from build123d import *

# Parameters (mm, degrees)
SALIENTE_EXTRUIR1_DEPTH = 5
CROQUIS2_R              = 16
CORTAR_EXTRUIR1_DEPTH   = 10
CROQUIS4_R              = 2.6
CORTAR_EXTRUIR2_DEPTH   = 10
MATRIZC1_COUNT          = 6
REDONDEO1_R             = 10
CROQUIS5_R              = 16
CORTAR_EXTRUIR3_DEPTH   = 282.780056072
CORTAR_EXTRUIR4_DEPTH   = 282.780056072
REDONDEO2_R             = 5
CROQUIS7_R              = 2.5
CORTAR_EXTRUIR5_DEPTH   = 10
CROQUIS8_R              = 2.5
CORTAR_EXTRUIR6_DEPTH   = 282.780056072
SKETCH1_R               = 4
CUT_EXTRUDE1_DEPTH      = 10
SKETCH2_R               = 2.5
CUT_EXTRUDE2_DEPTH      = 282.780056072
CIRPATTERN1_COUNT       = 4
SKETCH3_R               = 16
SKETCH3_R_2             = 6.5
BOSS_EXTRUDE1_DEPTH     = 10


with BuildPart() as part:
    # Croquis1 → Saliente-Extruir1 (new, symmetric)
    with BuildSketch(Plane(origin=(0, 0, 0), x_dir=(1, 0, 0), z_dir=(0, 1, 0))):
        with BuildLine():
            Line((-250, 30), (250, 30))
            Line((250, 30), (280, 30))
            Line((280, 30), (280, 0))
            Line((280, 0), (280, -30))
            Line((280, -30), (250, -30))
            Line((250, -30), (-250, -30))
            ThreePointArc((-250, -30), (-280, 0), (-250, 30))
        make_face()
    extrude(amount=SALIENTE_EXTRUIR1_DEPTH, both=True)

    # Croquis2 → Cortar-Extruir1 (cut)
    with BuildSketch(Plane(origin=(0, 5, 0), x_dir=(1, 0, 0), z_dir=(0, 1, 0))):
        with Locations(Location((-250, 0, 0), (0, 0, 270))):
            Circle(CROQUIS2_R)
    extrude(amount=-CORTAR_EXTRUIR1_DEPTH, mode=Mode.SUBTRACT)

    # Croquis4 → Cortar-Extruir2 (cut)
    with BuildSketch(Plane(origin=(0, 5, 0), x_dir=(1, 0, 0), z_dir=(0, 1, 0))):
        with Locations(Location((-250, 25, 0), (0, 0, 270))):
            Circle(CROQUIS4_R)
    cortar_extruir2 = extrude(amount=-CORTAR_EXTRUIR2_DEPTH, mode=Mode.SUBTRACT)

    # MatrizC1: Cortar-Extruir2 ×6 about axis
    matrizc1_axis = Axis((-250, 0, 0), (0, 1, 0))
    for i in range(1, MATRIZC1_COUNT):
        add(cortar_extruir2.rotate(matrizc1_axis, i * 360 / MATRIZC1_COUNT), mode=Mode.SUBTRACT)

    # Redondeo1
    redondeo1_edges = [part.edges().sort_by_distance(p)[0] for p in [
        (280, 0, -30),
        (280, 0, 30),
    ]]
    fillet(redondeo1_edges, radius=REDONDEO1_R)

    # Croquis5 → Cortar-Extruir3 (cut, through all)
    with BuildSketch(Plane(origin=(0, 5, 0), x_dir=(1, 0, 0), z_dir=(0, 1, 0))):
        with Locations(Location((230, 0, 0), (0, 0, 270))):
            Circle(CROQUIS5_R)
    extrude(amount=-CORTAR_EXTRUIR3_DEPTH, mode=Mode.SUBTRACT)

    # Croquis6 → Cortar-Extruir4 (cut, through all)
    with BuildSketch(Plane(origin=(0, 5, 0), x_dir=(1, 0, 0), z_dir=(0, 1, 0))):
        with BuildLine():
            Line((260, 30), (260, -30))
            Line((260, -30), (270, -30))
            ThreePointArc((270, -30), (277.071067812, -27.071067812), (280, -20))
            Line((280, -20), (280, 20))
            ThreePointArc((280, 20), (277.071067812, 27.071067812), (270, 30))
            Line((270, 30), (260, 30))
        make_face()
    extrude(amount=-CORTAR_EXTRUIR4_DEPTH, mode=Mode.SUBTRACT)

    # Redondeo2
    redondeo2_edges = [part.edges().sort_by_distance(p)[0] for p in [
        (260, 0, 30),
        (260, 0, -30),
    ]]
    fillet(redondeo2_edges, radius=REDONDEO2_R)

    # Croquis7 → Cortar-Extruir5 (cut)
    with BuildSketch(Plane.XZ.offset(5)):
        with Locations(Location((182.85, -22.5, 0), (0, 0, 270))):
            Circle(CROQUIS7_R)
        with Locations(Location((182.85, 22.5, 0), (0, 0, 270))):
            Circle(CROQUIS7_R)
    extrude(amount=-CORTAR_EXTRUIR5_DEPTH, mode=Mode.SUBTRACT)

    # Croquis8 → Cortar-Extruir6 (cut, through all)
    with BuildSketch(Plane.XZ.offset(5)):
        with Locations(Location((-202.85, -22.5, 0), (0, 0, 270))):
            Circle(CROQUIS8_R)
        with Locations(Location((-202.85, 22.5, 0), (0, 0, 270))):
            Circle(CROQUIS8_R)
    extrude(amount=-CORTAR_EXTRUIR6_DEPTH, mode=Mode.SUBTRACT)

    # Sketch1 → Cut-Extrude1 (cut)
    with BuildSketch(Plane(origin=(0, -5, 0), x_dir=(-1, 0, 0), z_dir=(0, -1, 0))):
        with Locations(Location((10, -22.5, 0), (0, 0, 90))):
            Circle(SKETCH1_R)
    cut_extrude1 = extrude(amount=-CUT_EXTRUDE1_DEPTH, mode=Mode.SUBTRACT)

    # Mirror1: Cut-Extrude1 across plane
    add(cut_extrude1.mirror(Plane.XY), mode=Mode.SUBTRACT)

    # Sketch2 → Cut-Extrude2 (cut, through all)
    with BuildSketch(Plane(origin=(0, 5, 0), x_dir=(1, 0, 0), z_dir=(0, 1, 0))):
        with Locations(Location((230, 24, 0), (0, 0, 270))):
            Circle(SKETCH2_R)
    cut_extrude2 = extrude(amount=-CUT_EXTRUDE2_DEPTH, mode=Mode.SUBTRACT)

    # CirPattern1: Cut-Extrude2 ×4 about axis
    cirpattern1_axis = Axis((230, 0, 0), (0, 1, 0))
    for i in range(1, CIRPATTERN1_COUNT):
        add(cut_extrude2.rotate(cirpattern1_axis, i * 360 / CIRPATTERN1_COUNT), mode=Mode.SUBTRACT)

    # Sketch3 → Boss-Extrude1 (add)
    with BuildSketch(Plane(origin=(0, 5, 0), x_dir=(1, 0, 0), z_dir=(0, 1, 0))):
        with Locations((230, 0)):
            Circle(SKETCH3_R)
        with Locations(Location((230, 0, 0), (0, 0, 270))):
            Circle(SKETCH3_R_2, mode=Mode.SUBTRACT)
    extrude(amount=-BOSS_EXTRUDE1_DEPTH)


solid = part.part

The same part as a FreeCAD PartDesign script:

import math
import FreeCAD as App
import Part
import Sketcher
Q = App.Units.Quantity


def edges_at(feature, points):
    """Names of the edges that pass closest to the given points."""
    edges = feature.Shape.Edges
    near = lambda p: min(range(len(edges)), key=lambda i: edges[i].distToShape(Part.Vertex(*p))[0])
    return sorted({f"Edge{near(p) + 1}" for p in points})

doc = App.newDocument("Part")
params = doc.addObject("Spreadsheet::Sheet", "Params")
for row, (alias, value) in enumerate([
    ("sketch1_radius", "30 mm"),
    ("sketch1_width", "530 mm"),
    ("pad1_length", "10 mm"),
    ("sketch2_diameter", "32 mm"),
    ("pocket1_length", "10 mm"),
    ("sketch3_diameter", "5.2 mm"),
    ("pocket2_length", "10 mm"),
    ("fillet_radius", "10 mm"),
    ("sketch4_diameter", "32 mm"),
    ("sketch5_radius", "10 mm"),
    ("sketch5_width", "10 mm"),
    ("sketch5_height", "60 mm"),
    ("fillet2_radius", "5 mm"),
    ("sketch6_diameter", "5 mm"),
    ("pocket5_length", "10 mm"),
    ("sketch7_diameter", "5 mm"),
    ("sketch8_diameter", "8 mm"),
    ("pocket7_length", "10 mm"),
    ("sketch9_diameter", "5 mm"),
    ("sketch10_diameter", "32 mm"),
    ("sketch10_diameter2", "13 mm"),
    ("pad2_length", "10 mm"),
], start=1):
    params.set(f"A{row}", alias)
    params.set(f"B{row}", "=" + value)
    params.setAlias(f"B{row}", alias)

body = doc.addObject("PartDesign::Body", "Body")

# Sketch on XZ plane
sketch1 = doc.addObject("Sketcher::SketchObject", "Sketch")
body.addObject(sketch1)
sketch1.AttachmentSupport = (doc.XZ_Plane, [""])
sketch1.MapMode = "FlatFace"
sketch1.addGeometry(Part.LineSegment(App.Vector(280, -30, 0), App.Vector(-250, -30, 0)), False)
sketch1.addGeometry(Part.ArcOfCircle(Part.Circle(App.Vector(-250, 0, 0), App.Vector(0, 0, 1), 30), math.radians(90), math.radians(270)), False)
sketch1.addGeometry(Part.LineSegment(App.Vector(-250, 30, 0), App.Vector(280, 30, 0)), False)
sketch1.addGeometry(Part.LineSegment(App.Vector(280, 30, 0), App.Vector(280, -30, 0)), False)
sketch1.addConstraint(Sketcher.Constraint("Tangent", 0, 2, 1, 2))
sketch1.addConstraint(Sketcher.Constraint("Tangent", 1, 1, 2, 1))
sketch1.addConstraint(Sketcher.Constraint("Coincident", 2, 2, 3, 1))
sketch1.addConstraint(Sketcher.Constraint("Coincident", 3, 2, 0, 1))
sketch1.addConstraint(Sketcher.Constraint("Horizontal", 0))
sketch1.addConstraint(Sketcher.Constraint("Horizontal", 2))
sketch1.addConstraint(Sketcher.Constraint("Vertical", 3))
sketch1.addConstraint(Sketcher.Constraint("PointOnObject", 1, 3, -1))
sketch1.addConstraint(Sketcher.Constraint("Radius", 1, Q("30 mm")))
sketch1.addConstraint(Sketcher.Constraint("DistanceX", 0, 2, 0, 1, Q("530 mm")))
sketch1.addConstraint(Sketcher.Constraint("DistanceX", 1, 3, -1, 1, Q("250 mm")))
sketch1.setExpression("Constraints[8]", "Params.sketch1_radius")
sketch1.setExpression("Constraints[9]", "Params.sketch1_width")
pad1 = doc.addObject("PartDesign::Pad", "Pad")
body.addObject(pad1)
pad1.Profile = sketch1
pad1.setExpression("Length", "Params.pad1_length")
pad1.Midplane = True

# Sketch on XZ plane
sketch2 = doc.addObject("Sketcher::SketchObject", "Sketch001")
body.addObject(sketch2)
sketch2.AttachmentSupport = (doc.XZ_Plane, [""])
sketch2.MapMode = "FlatFace"
sketch2.AttachmentOffset = App.Placement(App.Vector(0, 0, -5), App.Rotation())
sketch2.addGeometry(Part.Circle(App.Vector(-250, 0, 0), App.Vector(0, 0, 1), 16), False)
sketch2.addConstraint(Sketcher.Constraint("PointOnObject", 0, 3, -1))
sketch2.addConstraint(Sketcher.Constraint("Diameter", 0, Q("32 mm")))
sketch2.addConstraint(Sketcher.Constraint("DistanceX", 0, 3, -1, 1, Q("250 mm")))
sketch2.setExpression("Constraints[1]", "Params.sketch2_diameter")
pocket1 = doc.addObject("PartDesign::Pocket", "Pocket")
body.addObject(pocket1)
pocket1.Profile = sketch2
pocket1.setExpression("Length", "Params.pocket1_length")
pocket1.Reversed = True

# Sketch on XZ plane
sketch3 = doc.addObject("Sketcher::SketchObject", "Sketch002")
body.addObject(sketch3)
sketch3.AttachmentSupport = (doc.XZ_Plane, [""])
sketch3.MapMode = "FlatFace"
sketch3.AttachmentOffset = App.Placement(App.Vector(0, 0, -5), App.Rotation())
sketch3.addGeometry(Part.Circle(App.Vector(-250, -25, 0), App.Vector(0, 0, 1), 2.6), False)
sketch3.addConstraint(Sketcher.Constraint("Diameter", 0, Q("5.2 mm")))
sketch3.addConstraint(Sketcher.Constraint("DistanceX", 0, 3, -1, 1, Q("250 mm")))
sketch3.addConstraint(Sketcher.Constraint("DistanceY", 0, 3, -1, 1, Q("25 mm")))
sketch3.setExpression("Constraints[0]", "Params.sketch3_diameter")
pocket2 = doc.addObject("PartDesign::Pocket", "Pocket001")
body.addObject(pocket2)
pocket2.Profile = sketch3
pocket2.setExpression("Length", "Params.pocket2_length")
pocket2.Reversed = True
doc.recompute()

datumline = doc.addObject("PartDesign::Line", "DatumLine")
body.addObject(datumline)
datumline.Placement = App.Placement(App.Vector(-250, 0, 0), App.Rotation(App.Vector(0, 0, 1), App.Vector(0, 1, 0)))
polarpattern = doc.addObject("PartDesign::PolarPattern", "PolarPattern")
body.addObject(polarpattern)
polarpattern.Originals = [pocket2]
polarpattern.Axis = (datumline, [""])
polarpattern.Angle = 360
polarpattern.Occurrences = 6
body.Tip = polarpattern
doc.recompute()

fillet = doc.addObject("PartDesign::Fillet", "Fillet")
body.addObject(fillet)
fillet.Base = (polarpattern, edges_at(polarpattern, [(280, 0, -30), (280, 0, 30)]))
fillet.setExpression("Radius", "Params.fillet_radius")

# Sketch on XZ plane
sketch4 = doc.addObject("Sketcher::SketchObject", "Sketch003")
body.addObject(sketch4)
sketch4.AttachmentSupport = (doc.XZ_Plane, [""])
sketch4.MapMode = "FlatFace"
sketch4.AttachmentOffset = App.Placement(App.Vector(0, 0, -5), App.Rotation())
sketch4.addGeometry(Part.Circle(App.Vector(230, 0, 0), App.Vector(0, 0, 1), 16), False)
sketch4.addConstraint(Sketcher.Constraint("PointOnObject", 0, 3, -1))
sketch4.addConstraint(Sketcher.Constraint("Diameter", 0, Q("32 mm")))
sketch4.addConstraint(Sketcher.Constraint("DistanceX", -1, 1, 0, 3, Q("230 mm")))
sketch4.setExpression("Constraints[1]", "Params.sketch4_diameter")
pocket3 = doc.addObject("PartDesign::Pocket", "Pocket002")
body.addObject(pocket3)
pocket3.Profile = sketch4
pocket3.Type = "ThroughAll"
pocket3.Reversed = True

# Sketch on XZ plane
sketch5 = doc.addObject("Sketcher::SketchObject", "Sketch004")
body.addObject(sketch5)
sketch5.AttachmentSupport = (doc.XZ_Plane, [""])
sketch5.MapMode = "FlatFace"
sketch5.AttachmentOffset = App.Placement(App.Vector(0, 0, -5), App.Rotation())
sketch5.addGeometry(Part.LineSegment(App.Vector(260, -30, 0), App.Vector(260, 30, 0)), False)
sketch5.addGeometry(Part.LineSegment(App.Vector(260, 30, 0), App.Vector(270, 30, 0)), False)
sketch5.addGeometry(Part.ArcOfCircle(Part.Circle(App.Vector(270, 20, 0), App.Vector(0, 0, 1), 10), math.radians(0), math.radians(90)), False)
sketch5.addGeometry(Part.LineSegment(App.Vector(280, 20, 0), App.Vector(280, -20, 0)), False)
sketch5.addGeometry(Part.ArcOfCircle(Part.Circle(App.Vector(270, -20, 0), App.Vector(0, 0, 1), 10), math.radians(-90), math.radians(0)), False)
sketch5.addGeometry(Part.LineSegment(App.Vector(270, -30, 0), App.Vector(260, -30, 0)), False)
sketch5.addConstraint(Sketcher.Constraint("Coincident", 0, 2, 1, 1))
sketch5.addConstraint(Sketcher.Constraint("Tangent", 1, 2, 2, 2))
sketch5.addConstraint(Sketcher.Constraint("Tangent", 2, 1, 3, 1))
sketch5.addConstraint(Sketcher.Constraint("Tangent", 3, 2, 4, 2))
sketch5.addConstraint(Sketcher.Constraint("Tangent", 4, 1, 5, 1))
sketch5.addConstraint(Sketcher.Constraint("Coincident", 5, 2, 0, 1))
sketch5.addConstraint(Sketcher.Constraint("Vertical", 0))
sketch5.addConstraint(Sketcher.Constraint("Horizontal", 1))
sketch5.addConstraint(Sketcher.Constraint("Vertical", 3))
sketch5.addConstraint(Sketcher.Constraint("Horizontal", 5))
sketch5.addConstraint(Sketcher.Constraint("Equal", 2, 4))
sketch5.addConstraint(Sketcher.Constraint("Radius", 2, Q("10 mm")))
sketch5.addConstraint(Sketcher.Constraint("DistanceX", 1, 1, 1, 2, Q("10 mm")))
sketch5.addConstraint(Sketcher.Constraint("DistanceY", 0, 1, 0, 2, Q("60 mm")))
sketch5.addConstraint(Sketcher.Constraint("DistanceX", -1, 1, 2, 3, Q("270 mm")))
sketch5.addConstraint(Sketcher.Constraint("DistanceY", -1, 1, 2, 3, Q("20 mm")))
sketch5.setExpression("Constraints[11]", "Params.sketch5_radius")
sketch5.setExpression("Constraints[12]", "Params.sketch5_width")
sketch5.setExpression("Constraints[13]", "Params.sketch5_height")
pocket4 = doc.addObject("PartDesign::Pocket", "Pocket003")
body.addObject(pocket4)
pocket4.Profile = sketch5
pocket4.Type = "ThroughAll"
pocket4.Reversed = True
doc.recompute()

fillet2 = doc.addObject("PartDesign::Fillet", "Fillet001")
body.addObject(fillet2)
fillet2.Base = (pocket4, edges_at(pocket4, [(260, 0, 30), (260, 0, -30)]))
fillet2.setExpression("Radius", "Params.fillet2_radius")

# Sketch on XZ plane
sketch6 = doc.addObject("Sketcher::SketchObject", "Sketch005")
body.addObject(sketch6)
sketch6.AttachmentSupport = (doc.XZ_Plane, [""])
sketch6.MapMode = "FlatFace"
sketch6.AttachmentOffset = App.Placement(App.Vector(0, 0, 5), App.Rotation())
sketch6.addGeometry(Part.Circle(App.Vector(182.8, -22.5, 0), App.Vector(0, 0, 1), 2.5), False)
sketch6.addGeometry(Part.Circle(App.Vector(182.8, 22.5, 0), App.Vector(0, 0, 1), 2.5), False)
sketch6.addConstraint(Sketcher.Constraint("Equal", 0, 1))
sketch6.addConstraint(Sketcher.Constraint("Symmetric", 0, 3, 1, 3, -1))
sketch6.addConstraint(Sketcher.Constraint("Diameter", 0, Q("5 mm")))
sketch6.addConstraint(Sketcher.Constraint("DistanceY", 0, 3, 1, 3, Q("45 mm")))
sketch6.addConstraint(Sketcher.Constraint("DistanceX", -1, 1, 0, 3, Q("182.85 mm")))
sketch6.setExpression("Constraints[2]", "Params.sketch6_diameter")
pocket5 = doc.addObject("PartDesign::Pocket", "Pocket004")
body.addObject(pocket5)
pocket5.Profile = sketch6
pocket5.setExpression("Length", "Params.pocket5_length")

# Sketch on XZ plane
sketch7 = doc.addObject("Sketcher::SketchObject", "Sketch006")
body.addObject(sketch7)
sketch7.AttachmentSupport = (doc.XZ_Plane, [""])
sketch7.MapMode = "FlatFace"
sketch7.AttachmentOffset = App.Placement(App.Vector(0, 0, 5), App.Rotation())
sketch7.addGeometry(Part.Circle(App.Vector(-202.8, -22.5, 0), App.Vector(0, 0, 1), 2.5), False)
sketch7.addGeometry(Part.Circle(App.Vector(-202.8, 22.5, 0), App.Vector(0, 0, 1), 2.5), False)
sketch7.addConstraint(Sketcher.Constraint("Equal", 0, 1))
sketch7.addConstraint(Sketcher.Constraint("Symmetric", 0, 3, 1, 3, -1))
sketch7.addConstraint(Sketcher.Constraint("Diameter", 0, Q("5 mm")))
sketch7.addConstraint(Sketcher.Constraint("DistanceY", 0, 3, 1, 3, Q("45 mm")))
sketch7.addConstraint(Sketcher.Constraint("DistanceX", 0, 3, -1, 1, Q("202.85 mm")))
sketch7.setExpression("Constraints[2]", "Params.sketch7_diameter")
pocket6 = doc.addObject("PartDesign::Pocket", "Pocket005")
body.addObject(pocket6)
pocket6.Profile = sketch7
pocket6.Type = "ThroughAll"

# Sketch on XZ plane
sketch8 = doc.addObject("Sketcher::SketchObject", "Sketch007")
body.addObject(sketch8)
sketch8.AttachmentSupport = (doc.XZ_Plane, [""])
sketch8.MapMode = "FlatFace"
sketch8.AttachmentOffset = App.Placement(App.Vector(0, 0, 5), App.Rotation())
sketch8.addGeometry(Part.Circle(App.Vector(-10, 22.5, 0), App.Vector(0, 0, 1), 4), False)
sketch8.addConstraint(Sketcher.Constraint("Diameter", 0, Q("8 mm")))
sketch8.addConstraint(Sketcher.Constraint("DistanceX", 0, 3, -1, 1, Q("10 mm")))
sketch8.addConstraint(Sketcher.Constraint("DistanceY", -1, 1, 0, 3, Q("22.5 mm")))
sketch8.setExpression("Constraints[0]", "Params.sketch8_diameter")
pocket7 = doc.addObject("PartDesign::Pocket", "Pocket006")
body.addObject(pocket7)
pocket7.Profile = sketch8
pocket7.setExpression("Length", "Params.pocket7_length")
doc.recompute()

mirrored = doc.addObject("PartDesign::Mirrored", "Mirrored")
body.addObject(mirrored)
mirrored.Originals = [pocket7]
mirrored.MirrorPlane = (doc.XY_Plane, [""])
body.Tip = mirrored

# Sketch on XZ plane
sketch9 = doc.addObject("Sketcher::SketchObject", "Sketch008")
body.addObject(sketch9)
sketch9.AttachmentSupport = (doc.XZ_Plane, [""])
sketch9.MapMode = "FlatFace"
sketch9.AttachmentOffset = App.Placement(App.Vector(0, 0, -5), App.Rotation())
sketch9.addGeometry(Part.Circle(App.Vector(230, -24, 0), App.Vector(0, 0, 1), 2.5), False)
sketch9.addConstraint(Sketcher.Constraint("Diameter", 0, Q("5 mm")))
sketch9.addConstraint(Sketcher.Constraint("DistanceX", -1, 1, 0, 3, Q("230 mm")))
sketch9.addConstraint(Sketcher.Constraint("DistanceY", 0, 3, -1, 1, Q("24 mm")))
sketch9.setExpression("Constraints[0]", "Params.sketch9_diameter")
pocket8 = doc.addObject("PartDesign::Pocket", "Pocket007")
body.addObject(pocket8)
pocket8.Profile = sketch9
pocket8.Type = "ThroughAll"
pocket8.Reversed = True
doc.recompute()

datumline2 = doc.addObject("PartDesign::Line", "DatumLine001")
body.addObject(datumline2)
datumline2.Placement = App.Placement(App.Vector(230, 0, 0), App.Rotation(App.Vector(0, 0, 1), App.Vector(0, 1, 0)))
polarpattern2 = doc.addObject("PartDesign::PolarPattern", "PolarPattern001")
body.addObject(polarpattern2)
polarpattern2.Originals = [pocket8]
polarpattern2.Axis = (datumline2, [""])
polarpattern2.Angle = 360
polarpattern2.Occurrences = 4
body.Tip = polarpattern2

# Sketch on XZ plane
sketch10 = doc.addObject("Sketcher::SketchObject", "Sketch009")
body.addObject(sketch10)
sketch10.AttachmentSupport = (doc.XZ_Plane, [""])
sketch10.MapMode = "FlatFace"
sketch10.AttachmentOffset = App.Placement(App.Vector(0, 0, -5), App.Rotation())
sketch10.addGeometry(Part.Circle(App.Vector(230, 0, 0), App.Vector(0, 0, 1), 16), False)
sketch10.addGeometry(Part.Circle(App.Vector(230, 0, 0), App.Vector(0, 0, 1), 6), False)
sketch10.addConstraint(Sketcher.Constraint("Coincident", 1, 3, 0, 3))
sketch10.addConstraint(Sketcher.Constraint("PointOnObject", 0, 3, -1))
sketch10.addConstraint(Sketcher.Constraint("Diameter", 0, Q("32 mm")))
sketch10.addConstraint(Sketcher.Constraint("Diameter", 1, Q("13 mm")))
sketch10.addConstraint(Sketcher.Constraint("DistanceX", -1, 1, 0, 3, Q("230 mm")))
sketch10.setExpression("Constraints[2]", "Params.sketch10_diameter")
sketch10.setExpression("Constraints[3]", "Params.sketch10_diameter2")
pad2 = doc.addObject("PartDesign::Pad", "Pad001")
body.addObject(pad2)
pad2.Profile = sketch10
pad2.setExpression("Length", "Params.pad2_length")

doc.recompute()
